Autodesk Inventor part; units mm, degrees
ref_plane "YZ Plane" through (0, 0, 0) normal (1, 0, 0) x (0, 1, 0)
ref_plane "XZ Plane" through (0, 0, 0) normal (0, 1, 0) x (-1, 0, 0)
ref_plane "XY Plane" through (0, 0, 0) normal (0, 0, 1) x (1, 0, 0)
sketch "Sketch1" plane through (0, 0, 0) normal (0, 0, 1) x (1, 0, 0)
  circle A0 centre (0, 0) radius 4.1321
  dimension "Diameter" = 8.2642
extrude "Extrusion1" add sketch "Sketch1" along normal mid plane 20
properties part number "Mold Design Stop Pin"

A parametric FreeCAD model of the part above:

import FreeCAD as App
import Part
import Sketcher

V = App.Vector
Q = App.Units.Quantity

doc = App.newDocument("Part")
params = doc.addObject("Spreadsheet::Sheet", "Params")
for row, (alias, value) in enumerate([
    ("pad1_length", "20 mm"),
], start=1):
    params.set(f"A{row}", alias)
    params.set(f"B{row}", "=" + value)
    params.setAlias(f"B{row}", alias)

body = doc.addObject("PartDesign::Body", "Body")

# Sketch on XY plane
sketch1 = doc.addObject("Sketcher::SketchObject", "Sketch")
body.addObject(sketch1)
sketch1.AttachmentSupport = (doc.XY_Plane, [""])
sketch1.MapMode = "FlatFace"
sketch1.addGeometry(Part.Circle(V(0, 0, 0), V(0, 0, 1), 4.1), False)
sketch1.addConstraint([
    Sketcher.Constraint("Coincident", 0, 3, -1, 1),
    Sketcher.Constraint("Diameter", 0, Q("8.2642 mm")),
])
pad1 = doc.addObject("PartDesign::Pad", "Pad")
body.addObject(pad1)
pad1.Profile = sketch1
pad1.setExpression("Length", "Params.pad1_length")
pad1.Midplane = True

doc.recompute()
